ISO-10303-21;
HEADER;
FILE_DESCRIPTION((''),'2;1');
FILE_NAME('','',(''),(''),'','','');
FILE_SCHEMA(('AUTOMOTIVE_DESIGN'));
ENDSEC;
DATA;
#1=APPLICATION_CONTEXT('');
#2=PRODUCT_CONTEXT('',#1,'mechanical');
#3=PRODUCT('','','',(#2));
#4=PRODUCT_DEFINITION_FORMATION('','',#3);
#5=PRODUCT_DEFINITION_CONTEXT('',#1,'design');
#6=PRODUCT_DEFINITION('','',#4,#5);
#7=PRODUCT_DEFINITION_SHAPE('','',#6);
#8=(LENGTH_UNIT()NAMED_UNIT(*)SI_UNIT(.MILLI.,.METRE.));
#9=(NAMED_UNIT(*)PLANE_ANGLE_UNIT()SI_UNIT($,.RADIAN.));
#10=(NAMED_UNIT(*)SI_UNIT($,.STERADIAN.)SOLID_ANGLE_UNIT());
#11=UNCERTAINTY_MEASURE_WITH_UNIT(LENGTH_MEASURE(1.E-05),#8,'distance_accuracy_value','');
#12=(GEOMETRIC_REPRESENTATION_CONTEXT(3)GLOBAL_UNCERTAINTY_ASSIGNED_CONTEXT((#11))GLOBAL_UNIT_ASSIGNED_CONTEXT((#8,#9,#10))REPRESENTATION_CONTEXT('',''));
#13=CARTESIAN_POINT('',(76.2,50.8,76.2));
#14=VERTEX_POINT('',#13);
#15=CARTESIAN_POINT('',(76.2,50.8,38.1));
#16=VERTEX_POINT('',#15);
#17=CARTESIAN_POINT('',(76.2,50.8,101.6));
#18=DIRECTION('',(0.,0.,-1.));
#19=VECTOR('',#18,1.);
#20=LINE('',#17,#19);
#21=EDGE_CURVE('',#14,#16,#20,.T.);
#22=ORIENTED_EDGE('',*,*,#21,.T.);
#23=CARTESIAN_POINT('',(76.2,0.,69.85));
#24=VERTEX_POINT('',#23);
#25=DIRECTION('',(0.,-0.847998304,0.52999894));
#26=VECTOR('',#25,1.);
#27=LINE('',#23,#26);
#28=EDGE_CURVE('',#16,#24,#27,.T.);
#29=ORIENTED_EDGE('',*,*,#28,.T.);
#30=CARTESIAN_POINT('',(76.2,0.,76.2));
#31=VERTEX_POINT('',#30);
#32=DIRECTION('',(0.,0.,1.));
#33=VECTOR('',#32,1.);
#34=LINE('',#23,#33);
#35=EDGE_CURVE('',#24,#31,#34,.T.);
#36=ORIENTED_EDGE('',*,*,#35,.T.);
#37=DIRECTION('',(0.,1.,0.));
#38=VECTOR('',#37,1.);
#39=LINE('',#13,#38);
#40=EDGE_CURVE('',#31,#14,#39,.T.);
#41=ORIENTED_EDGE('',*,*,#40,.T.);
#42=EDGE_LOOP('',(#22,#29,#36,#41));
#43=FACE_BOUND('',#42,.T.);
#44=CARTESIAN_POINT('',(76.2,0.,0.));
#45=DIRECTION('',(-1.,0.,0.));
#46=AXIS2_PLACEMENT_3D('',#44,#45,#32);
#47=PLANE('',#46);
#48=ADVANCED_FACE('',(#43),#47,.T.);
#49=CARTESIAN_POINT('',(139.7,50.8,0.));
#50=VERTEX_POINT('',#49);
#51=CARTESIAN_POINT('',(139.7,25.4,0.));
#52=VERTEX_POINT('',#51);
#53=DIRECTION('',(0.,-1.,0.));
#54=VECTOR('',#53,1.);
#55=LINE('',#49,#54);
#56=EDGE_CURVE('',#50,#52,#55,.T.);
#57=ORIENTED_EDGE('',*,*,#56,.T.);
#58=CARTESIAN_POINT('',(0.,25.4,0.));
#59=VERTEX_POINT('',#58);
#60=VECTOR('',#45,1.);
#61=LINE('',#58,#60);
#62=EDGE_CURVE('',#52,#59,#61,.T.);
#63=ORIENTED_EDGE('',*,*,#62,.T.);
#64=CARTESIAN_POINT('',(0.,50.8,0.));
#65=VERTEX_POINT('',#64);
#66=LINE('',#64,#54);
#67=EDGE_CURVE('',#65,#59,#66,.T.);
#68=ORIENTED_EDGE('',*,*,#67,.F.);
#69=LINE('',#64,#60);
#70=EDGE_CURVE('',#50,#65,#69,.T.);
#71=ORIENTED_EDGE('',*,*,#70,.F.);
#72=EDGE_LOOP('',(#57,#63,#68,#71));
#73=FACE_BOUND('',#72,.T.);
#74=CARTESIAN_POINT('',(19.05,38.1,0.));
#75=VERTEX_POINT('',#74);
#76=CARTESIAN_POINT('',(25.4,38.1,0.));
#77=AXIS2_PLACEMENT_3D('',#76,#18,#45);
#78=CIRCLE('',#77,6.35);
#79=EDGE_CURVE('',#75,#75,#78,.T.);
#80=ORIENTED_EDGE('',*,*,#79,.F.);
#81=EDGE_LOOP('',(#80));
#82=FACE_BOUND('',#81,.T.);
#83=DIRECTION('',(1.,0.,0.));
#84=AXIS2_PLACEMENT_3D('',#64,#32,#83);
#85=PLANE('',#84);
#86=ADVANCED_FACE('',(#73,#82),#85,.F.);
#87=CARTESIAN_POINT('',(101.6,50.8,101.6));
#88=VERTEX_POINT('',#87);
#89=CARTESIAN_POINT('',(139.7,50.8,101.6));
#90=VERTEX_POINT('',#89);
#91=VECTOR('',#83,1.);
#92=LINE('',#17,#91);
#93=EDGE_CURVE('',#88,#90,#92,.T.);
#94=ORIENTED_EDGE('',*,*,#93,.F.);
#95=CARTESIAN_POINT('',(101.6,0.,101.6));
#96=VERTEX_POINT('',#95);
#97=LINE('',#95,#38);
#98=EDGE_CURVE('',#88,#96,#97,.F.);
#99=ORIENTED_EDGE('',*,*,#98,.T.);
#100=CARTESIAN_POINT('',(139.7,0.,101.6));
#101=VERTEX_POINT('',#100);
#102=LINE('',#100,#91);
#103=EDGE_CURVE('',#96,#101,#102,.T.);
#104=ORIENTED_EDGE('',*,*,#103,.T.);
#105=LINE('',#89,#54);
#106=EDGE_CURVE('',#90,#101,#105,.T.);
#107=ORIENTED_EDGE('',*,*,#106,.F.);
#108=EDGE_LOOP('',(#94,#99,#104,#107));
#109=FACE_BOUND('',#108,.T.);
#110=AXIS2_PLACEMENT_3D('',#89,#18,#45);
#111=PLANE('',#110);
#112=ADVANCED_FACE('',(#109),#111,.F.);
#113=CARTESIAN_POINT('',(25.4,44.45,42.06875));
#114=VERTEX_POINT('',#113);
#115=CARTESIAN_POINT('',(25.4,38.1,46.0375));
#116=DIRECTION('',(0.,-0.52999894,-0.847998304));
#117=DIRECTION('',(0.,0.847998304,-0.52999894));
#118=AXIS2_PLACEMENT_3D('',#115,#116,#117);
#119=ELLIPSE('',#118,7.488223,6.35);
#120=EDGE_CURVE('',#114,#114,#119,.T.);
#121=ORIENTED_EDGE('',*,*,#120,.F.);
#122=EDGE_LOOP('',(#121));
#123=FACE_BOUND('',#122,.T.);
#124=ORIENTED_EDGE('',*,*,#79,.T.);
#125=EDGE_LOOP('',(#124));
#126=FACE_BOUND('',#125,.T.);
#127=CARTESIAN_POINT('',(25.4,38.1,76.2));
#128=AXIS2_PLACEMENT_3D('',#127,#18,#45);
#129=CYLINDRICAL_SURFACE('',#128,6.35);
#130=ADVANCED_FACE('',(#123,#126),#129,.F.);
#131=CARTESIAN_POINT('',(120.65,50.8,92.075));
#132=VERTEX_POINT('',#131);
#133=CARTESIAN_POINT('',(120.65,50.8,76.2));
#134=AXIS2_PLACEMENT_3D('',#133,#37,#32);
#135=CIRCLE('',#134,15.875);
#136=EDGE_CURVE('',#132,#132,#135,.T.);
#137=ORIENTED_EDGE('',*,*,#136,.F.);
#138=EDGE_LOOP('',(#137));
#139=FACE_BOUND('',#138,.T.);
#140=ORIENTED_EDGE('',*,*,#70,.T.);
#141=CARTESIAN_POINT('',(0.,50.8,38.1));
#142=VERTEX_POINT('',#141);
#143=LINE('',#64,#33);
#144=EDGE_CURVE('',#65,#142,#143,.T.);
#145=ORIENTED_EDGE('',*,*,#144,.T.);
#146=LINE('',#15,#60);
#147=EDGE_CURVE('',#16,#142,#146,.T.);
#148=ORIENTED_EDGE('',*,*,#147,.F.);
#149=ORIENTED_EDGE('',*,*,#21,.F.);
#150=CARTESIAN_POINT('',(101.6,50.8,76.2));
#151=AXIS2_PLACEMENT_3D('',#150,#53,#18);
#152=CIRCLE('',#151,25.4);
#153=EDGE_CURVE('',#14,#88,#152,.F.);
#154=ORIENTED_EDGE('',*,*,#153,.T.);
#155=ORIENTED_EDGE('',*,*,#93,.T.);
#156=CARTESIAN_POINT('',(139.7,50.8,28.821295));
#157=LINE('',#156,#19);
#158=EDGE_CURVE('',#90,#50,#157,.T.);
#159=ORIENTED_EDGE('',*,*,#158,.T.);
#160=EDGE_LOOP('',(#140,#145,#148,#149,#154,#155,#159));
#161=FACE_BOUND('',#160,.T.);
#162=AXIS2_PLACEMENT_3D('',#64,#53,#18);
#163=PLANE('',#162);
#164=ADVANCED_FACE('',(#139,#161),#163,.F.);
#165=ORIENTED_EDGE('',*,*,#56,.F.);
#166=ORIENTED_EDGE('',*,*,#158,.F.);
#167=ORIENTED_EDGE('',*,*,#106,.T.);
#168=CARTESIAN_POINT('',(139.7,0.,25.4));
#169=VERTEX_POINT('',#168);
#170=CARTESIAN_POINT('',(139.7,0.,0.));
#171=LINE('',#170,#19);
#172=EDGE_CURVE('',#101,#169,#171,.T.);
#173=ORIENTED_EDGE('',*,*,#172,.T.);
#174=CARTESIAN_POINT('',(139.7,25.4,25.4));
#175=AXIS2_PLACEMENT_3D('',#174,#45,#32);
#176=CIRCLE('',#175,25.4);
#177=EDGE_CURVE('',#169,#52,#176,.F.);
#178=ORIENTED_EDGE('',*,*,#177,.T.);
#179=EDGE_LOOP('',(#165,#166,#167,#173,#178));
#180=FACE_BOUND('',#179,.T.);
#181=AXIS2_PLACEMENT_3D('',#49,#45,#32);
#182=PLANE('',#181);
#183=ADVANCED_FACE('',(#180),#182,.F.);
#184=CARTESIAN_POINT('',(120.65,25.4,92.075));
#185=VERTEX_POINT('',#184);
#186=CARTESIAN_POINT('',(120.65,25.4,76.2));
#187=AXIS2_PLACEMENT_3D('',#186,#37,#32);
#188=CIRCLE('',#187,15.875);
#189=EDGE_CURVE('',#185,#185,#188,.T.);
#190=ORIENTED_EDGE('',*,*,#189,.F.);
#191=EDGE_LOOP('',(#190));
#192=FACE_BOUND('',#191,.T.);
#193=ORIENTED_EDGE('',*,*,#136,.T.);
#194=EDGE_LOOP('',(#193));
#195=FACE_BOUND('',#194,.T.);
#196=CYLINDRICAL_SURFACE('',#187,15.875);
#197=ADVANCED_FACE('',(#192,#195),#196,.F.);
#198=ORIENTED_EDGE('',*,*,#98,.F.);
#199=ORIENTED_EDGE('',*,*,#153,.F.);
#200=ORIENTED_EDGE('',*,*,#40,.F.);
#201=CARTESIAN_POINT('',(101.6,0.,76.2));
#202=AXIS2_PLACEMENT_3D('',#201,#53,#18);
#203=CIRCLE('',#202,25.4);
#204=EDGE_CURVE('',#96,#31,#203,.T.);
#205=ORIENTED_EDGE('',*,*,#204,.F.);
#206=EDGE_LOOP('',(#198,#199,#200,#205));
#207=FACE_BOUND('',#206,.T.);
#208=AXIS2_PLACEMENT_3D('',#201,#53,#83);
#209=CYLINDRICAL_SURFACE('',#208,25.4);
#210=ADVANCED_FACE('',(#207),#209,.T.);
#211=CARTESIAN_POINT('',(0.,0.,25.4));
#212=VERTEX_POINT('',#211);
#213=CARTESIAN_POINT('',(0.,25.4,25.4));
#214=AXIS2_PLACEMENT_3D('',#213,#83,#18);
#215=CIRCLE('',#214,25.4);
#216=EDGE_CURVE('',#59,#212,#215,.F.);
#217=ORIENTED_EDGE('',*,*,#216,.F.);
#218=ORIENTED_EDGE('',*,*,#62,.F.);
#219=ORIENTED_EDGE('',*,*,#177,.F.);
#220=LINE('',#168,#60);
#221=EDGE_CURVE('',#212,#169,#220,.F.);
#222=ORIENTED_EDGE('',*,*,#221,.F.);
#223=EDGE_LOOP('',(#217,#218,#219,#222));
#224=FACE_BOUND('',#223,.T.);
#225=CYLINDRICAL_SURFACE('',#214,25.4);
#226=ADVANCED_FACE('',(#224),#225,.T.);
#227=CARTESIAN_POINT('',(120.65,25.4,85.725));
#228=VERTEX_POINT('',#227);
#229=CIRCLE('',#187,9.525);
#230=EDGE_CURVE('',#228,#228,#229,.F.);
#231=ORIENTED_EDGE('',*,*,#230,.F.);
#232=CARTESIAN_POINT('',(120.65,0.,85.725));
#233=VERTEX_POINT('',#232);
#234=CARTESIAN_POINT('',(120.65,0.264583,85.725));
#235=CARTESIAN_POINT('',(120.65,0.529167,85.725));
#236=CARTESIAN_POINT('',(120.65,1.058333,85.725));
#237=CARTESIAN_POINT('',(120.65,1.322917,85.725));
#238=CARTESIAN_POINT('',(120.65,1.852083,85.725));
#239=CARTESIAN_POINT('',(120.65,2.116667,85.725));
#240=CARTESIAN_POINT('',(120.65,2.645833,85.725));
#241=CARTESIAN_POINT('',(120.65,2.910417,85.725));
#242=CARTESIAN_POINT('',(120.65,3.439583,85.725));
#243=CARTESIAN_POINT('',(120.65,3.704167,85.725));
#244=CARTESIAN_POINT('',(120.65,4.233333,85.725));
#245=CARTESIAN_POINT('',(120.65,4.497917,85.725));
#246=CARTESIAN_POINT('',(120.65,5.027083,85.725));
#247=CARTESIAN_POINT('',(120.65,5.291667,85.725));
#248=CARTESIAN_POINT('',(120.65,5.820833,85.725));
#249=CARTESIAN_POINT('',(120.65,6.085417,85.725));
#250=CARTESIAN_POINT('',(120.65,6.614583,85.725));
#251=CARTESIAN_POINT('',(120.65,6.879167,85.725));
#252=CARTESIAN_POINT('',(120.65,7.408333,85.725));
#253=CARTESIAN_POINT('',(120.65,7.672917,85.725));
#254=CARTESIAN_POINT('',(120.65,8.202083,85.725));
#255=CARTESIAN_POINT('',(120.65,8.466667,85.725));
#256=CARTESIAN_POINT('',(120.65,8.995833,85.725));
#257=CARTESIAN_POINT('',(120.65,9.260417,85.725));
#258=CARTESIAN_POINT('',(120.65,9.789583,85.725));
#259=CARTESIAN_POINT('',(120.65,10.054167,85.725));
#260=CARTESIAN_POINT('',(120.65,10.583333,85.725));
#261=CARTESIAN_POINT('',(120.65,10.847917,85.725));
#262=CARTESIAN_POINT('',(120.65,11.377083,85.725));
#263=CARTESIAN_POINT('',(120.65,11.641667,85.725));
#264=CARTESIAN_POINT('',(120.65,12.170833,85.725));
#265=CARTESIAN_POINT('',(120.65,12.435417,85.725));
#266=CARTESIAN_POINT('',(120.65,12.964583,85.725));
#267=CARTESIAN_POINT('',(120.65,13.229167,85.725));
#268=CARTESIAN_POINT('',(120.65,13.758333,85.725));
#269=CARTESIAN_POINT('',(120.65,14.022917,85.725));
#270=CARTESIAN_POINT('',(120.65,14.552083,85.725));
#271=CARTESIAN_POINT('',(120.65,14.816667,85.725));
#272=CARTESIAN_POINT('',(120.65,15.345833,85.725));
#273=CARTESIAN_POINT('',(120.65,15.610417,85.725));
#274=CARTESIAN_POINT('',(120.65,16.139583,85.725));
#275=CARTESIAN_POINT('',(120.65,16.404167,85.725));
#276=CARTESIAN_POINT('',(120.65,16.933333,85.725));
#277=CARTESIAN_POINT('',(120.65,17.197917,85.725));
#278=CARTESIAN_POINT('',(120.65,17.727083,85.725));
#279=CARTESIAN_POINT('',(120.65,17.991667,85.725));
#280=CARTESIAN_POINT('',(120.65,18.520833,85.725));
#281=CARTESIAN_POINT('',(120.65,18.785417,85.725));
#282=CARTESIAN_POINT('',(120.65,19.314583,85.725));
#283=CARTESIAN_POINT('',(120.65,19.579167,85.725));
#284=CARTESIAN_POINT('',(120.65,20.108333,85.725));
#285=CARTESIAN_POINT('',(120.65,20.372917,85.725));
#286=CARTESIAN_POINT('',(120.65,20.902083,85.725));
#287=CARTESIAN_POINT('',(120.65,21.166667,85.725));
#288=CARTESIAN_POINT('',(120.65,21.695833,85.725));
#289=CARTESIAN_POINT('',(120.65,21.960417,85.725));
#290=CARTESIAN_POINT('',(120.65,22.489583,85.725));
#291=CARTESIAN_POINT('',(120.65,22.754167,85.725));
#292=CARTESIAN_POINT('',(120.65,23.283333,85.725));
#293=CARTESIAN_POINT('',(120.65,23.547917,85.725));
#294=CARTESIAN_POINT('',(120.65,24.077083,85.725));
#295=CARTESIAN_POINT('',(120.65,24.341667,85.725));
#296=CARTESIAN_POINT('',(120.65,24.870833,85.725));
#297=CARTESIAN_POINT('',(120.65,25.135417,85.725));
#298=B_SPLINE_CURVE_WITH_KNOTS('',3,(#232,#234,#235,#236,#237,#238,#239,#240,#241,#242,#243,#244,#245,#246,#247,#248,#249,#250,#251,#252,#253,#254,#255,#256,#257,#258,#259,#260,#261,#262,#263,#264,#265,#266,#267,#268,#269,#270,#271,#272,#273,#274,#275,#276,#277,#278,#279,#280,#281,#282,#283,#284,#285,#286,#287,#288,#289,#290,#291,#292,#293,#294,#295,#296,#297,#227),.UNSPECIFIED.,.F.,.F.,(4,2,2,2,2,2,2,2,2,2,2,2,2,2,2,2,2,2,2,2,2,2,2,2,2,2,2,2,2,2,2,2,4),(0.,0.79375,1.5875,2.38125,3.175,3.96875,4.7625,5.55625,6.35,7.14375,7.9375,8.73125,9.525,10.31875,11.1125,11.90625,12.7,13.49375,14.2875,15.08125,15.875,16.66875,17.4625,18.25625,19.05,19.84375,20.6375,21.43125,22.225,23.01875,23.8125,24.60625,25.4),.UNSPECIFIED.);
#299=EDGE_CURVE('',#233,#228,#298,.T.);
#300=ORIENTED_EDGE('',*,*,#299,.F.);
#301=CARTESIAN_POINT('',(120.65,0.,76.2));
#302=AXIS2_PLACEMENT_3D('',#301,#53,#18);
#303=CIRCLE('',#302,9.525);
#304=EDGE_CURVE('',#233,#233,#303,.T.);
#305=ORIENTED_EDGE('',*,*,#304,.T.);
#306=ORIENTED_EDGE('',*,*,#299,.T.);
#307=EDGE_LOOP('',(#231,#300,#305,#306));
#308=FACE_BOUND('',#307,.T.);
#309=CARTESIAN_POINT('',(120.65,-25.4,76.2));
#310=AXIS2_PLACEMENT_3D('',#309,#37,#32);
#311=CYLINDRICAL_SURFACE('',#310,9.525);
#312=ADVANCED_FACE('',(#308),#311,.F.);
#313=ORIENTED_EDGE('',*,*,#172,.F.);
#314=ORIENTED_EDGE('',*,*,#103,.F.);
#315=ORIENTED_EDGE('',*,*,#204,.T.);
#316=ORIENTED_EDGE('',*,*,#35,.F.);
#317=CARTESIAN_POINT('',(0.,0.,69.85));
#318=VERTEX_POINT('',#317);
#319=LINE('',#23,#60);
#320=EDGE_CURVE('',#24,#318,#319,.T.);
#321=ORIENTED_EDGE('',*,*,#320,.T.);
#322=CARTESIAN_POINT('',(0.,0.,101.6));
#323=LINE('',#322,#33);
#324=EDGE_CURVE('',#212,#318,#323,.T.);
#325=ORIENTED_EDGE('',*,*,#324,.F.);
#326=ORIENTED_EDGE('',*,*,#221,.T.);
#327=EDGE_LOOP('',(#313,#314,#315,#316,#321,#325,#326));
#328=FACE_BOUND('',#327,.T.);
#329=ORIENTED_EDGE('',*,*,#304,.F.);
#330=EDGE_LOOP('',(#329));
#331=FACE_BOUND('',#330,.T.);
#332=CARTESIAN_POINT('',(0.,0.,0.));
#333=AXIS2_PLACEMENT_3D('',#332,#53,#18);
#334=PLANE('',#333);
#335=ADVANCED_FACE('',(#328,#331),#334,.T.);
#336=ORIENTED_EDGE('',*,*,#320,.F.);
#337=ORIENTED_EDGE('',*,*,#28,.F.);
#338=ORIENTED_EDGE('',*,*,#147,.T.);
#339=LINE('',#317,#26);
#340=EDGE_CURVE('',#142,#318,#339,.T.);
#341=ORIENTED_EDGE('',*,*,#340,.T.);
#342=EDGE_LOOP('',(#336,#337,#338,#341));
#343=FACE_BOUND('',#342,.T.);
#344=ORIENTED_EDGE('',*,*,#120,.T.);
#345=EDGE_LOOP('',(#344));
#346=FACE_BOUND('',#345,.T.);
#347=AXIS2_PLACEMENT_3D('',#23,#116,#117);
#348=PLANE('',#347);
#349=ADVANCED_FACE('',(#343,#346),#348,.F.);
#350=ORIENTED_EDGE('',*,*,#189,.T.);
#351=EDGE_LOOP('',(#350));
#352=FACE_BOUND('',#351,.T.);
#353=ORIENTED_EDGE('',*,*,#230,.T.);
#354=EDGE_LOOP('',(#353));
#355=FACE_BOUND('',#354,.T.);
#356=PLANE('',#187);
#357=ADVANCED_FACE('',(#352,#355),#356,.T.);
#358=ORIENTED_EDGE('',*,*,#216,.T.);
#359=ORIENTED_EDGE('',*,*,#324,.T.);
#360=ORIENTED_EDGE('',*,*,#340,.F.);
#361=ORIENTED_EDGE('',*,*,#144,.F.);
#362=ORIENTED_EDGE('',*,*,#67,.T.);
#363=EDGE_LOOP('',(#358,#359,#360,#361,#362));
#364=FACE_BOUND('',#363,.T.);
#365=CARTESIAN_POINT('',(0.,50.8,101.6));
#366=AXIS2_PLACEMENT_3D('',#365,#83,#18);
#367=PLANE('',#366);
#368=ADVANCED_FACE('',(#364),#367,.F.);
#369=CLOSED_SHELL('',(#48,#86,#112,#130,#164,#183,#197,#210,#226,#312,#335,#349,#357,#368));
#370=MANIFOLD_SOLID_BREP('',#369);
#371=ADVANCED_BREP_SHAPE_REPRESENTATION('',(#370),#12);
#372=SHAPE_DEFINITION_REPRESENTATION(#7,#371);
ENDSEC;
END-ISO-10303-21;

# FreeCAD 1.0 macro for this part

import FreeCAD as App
import Part
import Sketcher
from FreeCAD import Vector
Q = App.Units.Quantity


def edges_at(feature, points):
    """Names of the edges that pass closest to the given points."""
    edges = feature.Shape.Edges
    near = lambda p: min(range(len(edges)), key=lambda i: edges[i].distToShape(Part.Vertex(*p))[0])
    return sorted({f"Edge{near(p) + 1}" for p in points})

doc = App.newDocument("Part")
body = doc.addObject("PartDesign::Body", "Body")

# Sketch on XZ plane
sketch1 = body.newObject("Sketcher::SketchObject", "Sketch")
sketch1.AttachmentSupport = (doc.getObject("XZ_Plane"), [""])
sketch1.MapMode = "FlatFace"
sketch1.addGeometry([
    Part.LineSegment(Vector(0, 102, 0), Vector(140, 102, 0)),
    Part.LineSegment(Vector(140, 102, 0), Vector(140, 0, 0)),
    Part.LineSegment(Vector(140, 0, 0), Vector(0, 0, 0)),
    Part.LineSegment(Vector(0, 0, 0), Vector(0, 102, 0)),
], False)
sketch1.addConstraint([
    Sketcher.Constraint("Coincident", 0, 2, 1, 1),
    Sketcher.Constraint("Coincident", 1, 2, 2, 1),
    Sketcher.Constraint("Coincident", 2, 2, 3, 1),
    Sketcher.Constraint("Coincident", 3, 2, 0, 1),
    Sketcher.Constraint("Horizontal", 0),
    Sketcher.Constraint("Vertical", 1),
    Sketcher.Constraint("Horizontal", 2),
    Sketcher.Constraint("Vertical", 3),
    Sketcher.Constraint("Coincident", 2, 2, -1, 1),
    Sketcher.Constraint("DistanceY", 1, 2, 1, 1, Q("4 in")),
    Sketcher.Constraint("DistanceX", 0, 1, 0, 2, Q("5.5 in")),
])
pad1 = body.newObject("PartDesign::Pad", "Pad")
pad1.Profile = sketch1
pad1.Length = Q("2 in")
pad1.Reversed = True

# Sketch on YZ plane
sketch2 = body.newObject("Sketcher::SketchObject", "Sketch001")
sketch2.AttachmentSupport = (doc.getObject("YZ_Plane"), [""])
sketch2.MapMode = "FlatFace"
sketch2.addGeometry([
    Part.LineSegment(Vector(0, 70, 0), Vector(0, 102, 0)),
    Part.LineSegment(Vector(0, 102, 0), Vector(51, 102, 0)),
    Part.LineSegment(Vector(51, 102, 0), Vector(51, 38, 0)),
    Part.LineSegment(Vector(51, 38, 0), Vector(0, 70, 0)),
], False)
sketch2.addConstraint([
    Sketcher.Constraint("Coincident", 0, 2, 1, 1),
    Sketcher.Constraint("Coincident", 1, 2, 2, 1),
    Sketcher.Constraint("Coincident", 2, 2, 3, 1),
    Sketcher.Constraint("Coincident", 3, 2, 0, 1),
    Sketcher.Constraint("Vertical", 0),
    Sketcher.Constraint("Horizontal", 1),
    Sketcher.Constraint("Vertical", 2),
    Sketcher.Constraint("PointOnObject", 0, 2, -2),
    Sketcher.Constraint("DistanceX", 1, 1, 1, 2, Q("2 in")),
    Sketcher.Constraint("DistanceY", 2, 2, 2, 1, Q("2.5 in")),
    Sketcher.Constraint("DistanceY", -1, 1, 0, 2, Q("4 in")),
    Sketcher.Constraint("DistanceY", 0, 1, 0, 2, Q("1.25 in")),
])
pocket1 = body.newObject("PartDesign::Pocket", "Pocket")
pocket1.Profile = sketch2
pocket1.Length = Q("3 in")
pocket1.Reversed = True

# Sketch on XY plane
sketch3 = body.newObject("Sketcher::SketchObject", "Sketch002")
sketch3.AttachmentSupport = (doc.getObject("XY_Plane"), [""])
sketch3.MapMode = "FlatFace"
sketch3.addGeometry(Part.Circle(Vector(25, 38, 0), Vector(0, 0, 1), 6), False)
sketch3.addConstraint([
    Sketcher.Constraint("Diameter", 0, Q("0.5 in")),
    Sketcher.Constraint("DistanceX", -1, 1, 0, 3, Q("1 in")),
    Sketcher.Constraint("DistanceY", -1, 1, 0, 3, Q("1.5 in")),
])
pocket2 = body.newObject("PartDesign::Pocket", "Pocket001")
pocket2.Profile = sketch3
pocket2.Length = Q("3 in")
pocket2.Reversed = True

# Sketch on XZ plane
sketch4 = body.newObject("Sketcher::SketchObject", "Sketch003")
sketch4.AttachmentSupport = (doc.getObject("XZ_Plane"), [""])
sketch4.MapMode = "FlatFace"
sketch4.AttachmentOffset = App.Placement(Vector(0, 0, -2 * 25.4), App.Rotation())
sketch4.addGeometry(Part.Circle(Vector(121, 76, 0), Vector(0, 0, 1), 10), False)
sketch4.addConstraint([
    Sketcher.Constraint("Diameter", 0, Q("0.75 in")),
    Sketcher.Constraint("DistanceY", -1, 1, 0, 3, Q("3 in")),
    Sketcher.Constraint("DistanceX", -1, 1, 0, 3, Q("4.75 in")),
])
pocket3 = body.newObject("PartDesign::Pocket", "Pocket002")
pocket3.Profile = sketch4
pocket3.Length = Q("3 in")
pocket3.Reversed = True

# Sketch on XZ plane
sketch5 = body.newObject("Sketcher::SketchObject", "Sketch004")
sketch5.AttachmentSupport = (doc.getObject("XZ_Plane"), [""])
sketch5.MapMode = "FlatFace"
sketch5.AttachmentOffset = App.Placement(Vector(0, 0, -2 * 25.4), App.Rotation())
sketch5.addGeometry(Part.Circle(Vector(121, 76, 0), Vector(0, 0, 1), 16), False)
sketch5.addConstraint([
    Sketcher.Constraint("Diameter", 0, Q("1.25 in")),
    Sketcher.Constraint("DistanceY", -1, 1, 0, 3, Q("3 in")),
    Sketcher.Constraint("DistanceX", -1, 1, 0, 3, Q("4.75 in")),
])
pocket4 = body.newObject("PartDesign::Pocket", "Pocket003")
pocket4.Profile = sketch5
pocket4.Length = Q("1 in")
pocket4.Reversed = True
doc.recompute()

fillet = body.newObject("PartDesign::Fillet", "Fillet")
fillet.Base = (pocket4, edges_at(pocket4, [(76.2, 25.4, 101.6), (69.85, 0, 0)]))
fillet.Radius = Q("1 in")

doc.recompute()
